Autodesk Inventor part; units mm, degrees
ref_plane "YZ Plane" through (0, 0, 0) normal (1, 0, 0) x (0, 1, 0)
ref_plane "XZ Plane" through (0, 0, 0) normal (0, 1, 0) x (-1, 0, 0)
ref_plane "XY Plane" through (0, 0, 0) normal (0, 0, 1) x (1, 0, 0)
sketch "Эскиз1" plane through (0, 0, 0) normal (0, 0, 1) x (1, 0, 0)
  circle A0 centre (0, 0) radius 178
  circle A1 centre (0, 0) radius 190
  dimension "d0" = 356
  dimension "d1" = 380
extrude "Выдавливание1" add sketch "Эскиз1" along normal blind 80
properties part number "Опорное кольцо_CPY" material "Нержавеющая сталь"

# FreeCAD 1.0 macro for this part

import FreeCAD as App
import Part
import Sketcher
from FreeCAD import Vector
Q = App.Units.Quantity

doc = App.newDocument("Part")
body = doc.addObject("PartDesign::Body", "Body")

# Sketch on XY plane
sketch1 = body.newObject("Sketcher::SketchObject", "Sketch")
sketch1.AttachmentSupport = (doc.getObject("XY_Plane"), [""])
sketch1.MapMode = "FlatFace"
sketch1.addGeometry(Part.Circle(Vector(0, 0, 0), Vector(0, 0, 1), 190), False)
sketch1.addGeometry(Part.Circle(Vector(0, 0, 0), Vector(0, 0, 1), 178), False)
sketch1.addConstraint(Sketcher.Constraint("Coincident", 0, 3, -1, 1))
sketch1.addConstraint(Sketcher.Constraint("Coincident", 1, 3, -1, 1))
sketch1.addConstraint(Sketcher.Constraint("Diameter", 0, Q("380 mm")))
sketch1.addConstraint(Sketcher.Constraint("Diameter", 1, Q("356 mm")))
pad1 = body.newObject("PartDesign::Pad", "Pad")
pad1.Profile = sketch1
pad1.Length = 80

doc.recompute()
